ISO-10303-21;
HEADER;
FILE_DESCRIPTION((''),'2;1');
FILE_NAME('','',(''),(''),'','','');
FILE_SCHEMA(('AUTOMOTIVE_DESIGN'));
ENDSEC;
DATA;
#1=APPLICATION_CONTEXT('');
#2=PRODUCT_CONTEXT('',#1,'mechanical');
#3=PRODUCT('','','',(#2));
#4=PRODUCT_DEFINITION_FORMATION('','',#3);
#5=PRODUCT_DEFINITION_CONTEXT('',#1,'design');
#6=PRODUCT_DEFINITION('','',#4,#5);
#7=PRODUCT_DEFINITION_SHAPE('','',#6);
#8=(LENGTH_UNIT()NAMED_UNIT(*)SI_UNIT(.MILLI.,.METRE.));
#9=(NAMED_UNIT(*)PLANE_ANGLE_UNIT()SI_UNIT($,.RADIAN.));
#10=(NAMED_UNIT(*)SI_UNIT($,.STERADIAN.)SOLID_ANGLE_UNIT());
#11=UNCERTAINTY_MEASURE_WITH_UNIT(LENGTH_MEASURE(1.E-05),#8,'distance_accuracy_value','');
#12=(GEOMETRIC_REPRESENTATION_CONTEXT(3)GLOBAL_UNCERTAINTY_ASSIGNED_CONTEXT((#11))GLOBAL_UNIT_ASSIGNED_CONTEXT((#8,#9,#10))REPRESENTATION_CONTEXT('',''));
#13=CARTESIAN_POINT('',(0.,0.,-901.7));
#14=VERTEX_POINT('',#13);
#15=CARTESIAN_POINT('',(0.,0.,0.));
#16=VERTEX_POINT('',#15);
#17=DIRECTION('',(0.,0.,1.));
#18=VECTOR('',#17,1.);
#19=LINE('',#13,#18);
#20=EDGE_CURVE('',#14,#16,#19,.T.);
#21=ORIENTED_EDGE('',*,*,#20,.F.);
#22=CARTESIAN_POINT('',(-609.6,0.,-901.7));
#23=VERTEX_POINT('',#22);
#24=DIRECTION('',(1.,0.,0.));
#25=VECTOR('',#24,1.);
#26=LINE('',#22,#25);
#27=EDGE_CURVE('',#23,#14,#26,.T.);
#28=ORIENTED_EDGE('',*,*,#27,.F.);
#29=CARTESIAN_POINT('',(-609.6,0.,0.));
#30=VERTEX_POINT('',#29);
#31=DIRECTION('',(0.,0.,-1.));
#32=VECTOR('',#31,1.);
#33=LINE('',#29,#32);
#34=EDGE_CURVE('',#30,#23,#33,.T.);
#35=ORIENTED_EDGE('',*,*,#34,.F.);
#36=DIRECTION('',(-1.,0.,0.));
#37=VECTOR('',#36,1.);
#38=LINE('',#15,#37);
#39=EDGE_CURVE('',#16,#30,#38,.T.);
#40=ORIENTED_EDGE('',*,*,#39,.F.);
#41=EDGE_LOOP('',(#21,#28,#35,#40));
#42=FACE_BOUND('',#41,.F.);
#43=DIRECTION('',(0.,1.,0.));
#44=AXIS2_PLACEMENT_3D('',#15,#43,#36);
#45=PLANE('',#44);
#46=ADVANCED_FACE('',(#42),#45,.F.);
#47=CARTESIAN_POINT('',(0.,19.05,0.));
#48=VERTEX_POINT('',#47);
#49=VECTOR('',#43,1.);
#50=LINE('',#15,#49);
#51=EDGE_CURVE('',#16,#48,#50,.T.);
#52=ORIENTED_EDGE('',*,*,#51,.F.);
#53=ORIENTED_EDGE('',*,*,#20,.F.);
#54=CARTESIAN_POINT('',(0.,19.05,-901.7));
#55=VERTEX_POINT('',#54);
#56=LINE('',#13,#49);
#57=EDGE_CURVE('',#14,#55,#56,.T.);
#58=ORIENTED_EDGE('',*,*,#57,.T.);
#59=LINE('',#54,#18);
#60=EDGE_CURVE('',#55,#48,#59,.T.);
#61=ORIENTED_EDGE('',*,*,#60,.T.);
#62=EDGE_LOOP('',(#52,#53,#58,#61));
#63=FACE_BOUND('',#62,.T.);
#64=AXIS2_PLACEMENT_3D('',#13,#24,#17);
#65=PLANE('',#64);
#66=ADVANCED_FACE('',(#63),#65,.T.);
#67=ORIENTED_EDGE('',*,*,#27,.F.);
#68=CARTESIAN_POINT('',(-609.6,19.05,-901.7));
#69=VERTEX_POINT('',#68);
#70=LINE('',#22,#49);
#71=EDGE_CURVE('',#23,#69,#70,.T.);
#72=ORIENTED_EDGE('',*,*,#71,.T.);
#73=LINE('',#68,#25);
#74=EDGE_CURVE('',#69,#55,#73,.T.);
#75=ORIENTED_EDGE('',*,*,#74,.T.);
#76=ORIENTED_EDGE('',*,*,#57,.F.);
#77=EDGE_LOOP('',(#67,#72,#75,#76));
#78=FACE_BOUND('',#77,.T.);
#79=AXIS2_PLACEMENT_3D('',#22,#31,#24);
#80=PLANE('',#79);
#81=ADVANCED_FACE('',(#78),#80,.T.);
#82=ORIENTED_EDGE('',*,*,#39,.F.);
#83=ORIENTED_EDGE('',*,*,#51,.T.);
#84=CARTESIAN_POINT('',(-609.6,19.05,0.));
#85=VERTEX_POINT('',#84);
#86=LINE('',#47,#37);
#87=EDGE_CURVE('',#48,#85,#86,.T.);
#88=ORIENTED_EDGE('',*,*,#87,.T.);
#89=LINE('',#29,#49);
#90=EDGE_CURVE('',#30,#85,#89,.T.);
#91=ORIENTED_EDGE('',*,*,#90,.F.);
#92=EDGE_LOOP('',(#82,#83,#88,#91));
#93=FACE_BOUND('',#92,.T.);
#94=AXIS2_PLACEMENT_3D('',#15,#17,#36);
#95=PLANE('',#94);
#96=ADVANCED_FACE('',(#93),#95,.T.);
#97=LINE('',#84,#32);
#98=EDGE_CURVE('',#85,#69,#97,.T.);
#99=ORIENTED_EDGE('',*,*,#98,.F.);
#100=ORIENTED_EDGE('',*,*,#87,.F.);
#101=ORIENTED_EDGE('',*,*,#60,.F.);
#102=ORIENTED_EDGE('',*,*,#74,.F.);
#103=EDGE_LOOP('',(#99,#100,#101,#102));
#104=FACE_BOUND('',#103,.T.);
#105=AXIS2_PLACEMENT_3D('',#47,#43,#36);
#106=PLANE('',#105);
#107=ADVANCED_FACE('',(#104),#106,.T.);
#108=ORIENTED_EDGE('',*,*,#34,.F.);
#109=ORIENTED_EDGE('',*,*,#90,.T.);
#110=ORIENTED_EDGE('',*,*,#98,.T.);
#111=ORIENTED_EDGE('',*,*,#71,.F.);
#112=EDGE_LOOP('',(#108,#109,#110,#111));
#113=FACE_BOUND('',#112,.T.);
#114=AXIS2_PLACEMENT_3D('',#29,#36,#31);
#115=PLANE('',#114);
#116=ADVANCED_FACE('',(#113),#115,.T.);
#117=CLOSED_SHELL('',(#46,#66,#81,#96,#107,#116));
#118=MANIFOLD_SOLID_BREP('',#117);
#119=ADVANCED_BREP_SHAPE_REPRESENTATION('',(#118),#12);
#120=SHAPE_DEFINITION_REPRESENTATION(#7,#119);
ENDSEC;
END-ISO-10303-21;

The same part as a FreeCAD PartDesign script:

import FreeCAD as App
import Part
import Sketcher
from FreeCAD import Vector
Q = App.Units.Quantity


def add_polygon(sketch, points):
    """Adds a closed chain of lines whose ends are joined by coincident constraints."""
    first, n = sketch.GeometryCount, len(points)
    for a, b in zip(points, points[1:] + points[:1]):
        sketch.addGeometry(Part.LineSegment(App.Vector(*a, 0), App.Vector(*b, 0)), False)
    for i in range(n):
        sketch.addConstraint(Sketcher.Constraint("Coincident", first + i, 2, first + (i + 1) % n, 1))

doc = App.newDocument("Part")
body = doc.addObject("PartDesign::Body", "Body")

# Sketch on XZ plane
sketch1 = body.newObject("Sketcher::SketchObject", "Sketch")
sketch1.AttachmentSupport = (doc.getObject("XZ_Plane"), [""])
sketch1.MapMode = "FlatFace"
add_polygon(sketch1, [(-610, 0), (0, 0), (0, -902), (-610, -902)])  # lines 0-3
sketch1.addConstraint(Sketcher.Constraint("Horizontal", 0))
sketch1.addConstraint(Sketcher.Constraint("Vertical", 1))
sketch1.addConstraint(Sketcher.Constraint("Horizontal", 2))
sketch1.addConstraint(Sketcher.Constraint("Vertical", 3))
sketch1.addConstraint(Sketcher.Constraint("Coincident", 0, 2, -1, 1))
sketch1.addConstraint(Sketcher.Constraint("DistanceX", 0, 1, 0, 2, Q("24 in")))
sketch1.addConstraint(Sketcher.Constraint("DistanceY", 1, 2, 1, 1, Q("35.5 in")))
pad1 = body.newObject("PartDesign::Pad", "Pad")
pad1.Profile = sketch1
pad1.Length = Q("0.75 in")
pad1.Reversed = True

doc.recompute()
